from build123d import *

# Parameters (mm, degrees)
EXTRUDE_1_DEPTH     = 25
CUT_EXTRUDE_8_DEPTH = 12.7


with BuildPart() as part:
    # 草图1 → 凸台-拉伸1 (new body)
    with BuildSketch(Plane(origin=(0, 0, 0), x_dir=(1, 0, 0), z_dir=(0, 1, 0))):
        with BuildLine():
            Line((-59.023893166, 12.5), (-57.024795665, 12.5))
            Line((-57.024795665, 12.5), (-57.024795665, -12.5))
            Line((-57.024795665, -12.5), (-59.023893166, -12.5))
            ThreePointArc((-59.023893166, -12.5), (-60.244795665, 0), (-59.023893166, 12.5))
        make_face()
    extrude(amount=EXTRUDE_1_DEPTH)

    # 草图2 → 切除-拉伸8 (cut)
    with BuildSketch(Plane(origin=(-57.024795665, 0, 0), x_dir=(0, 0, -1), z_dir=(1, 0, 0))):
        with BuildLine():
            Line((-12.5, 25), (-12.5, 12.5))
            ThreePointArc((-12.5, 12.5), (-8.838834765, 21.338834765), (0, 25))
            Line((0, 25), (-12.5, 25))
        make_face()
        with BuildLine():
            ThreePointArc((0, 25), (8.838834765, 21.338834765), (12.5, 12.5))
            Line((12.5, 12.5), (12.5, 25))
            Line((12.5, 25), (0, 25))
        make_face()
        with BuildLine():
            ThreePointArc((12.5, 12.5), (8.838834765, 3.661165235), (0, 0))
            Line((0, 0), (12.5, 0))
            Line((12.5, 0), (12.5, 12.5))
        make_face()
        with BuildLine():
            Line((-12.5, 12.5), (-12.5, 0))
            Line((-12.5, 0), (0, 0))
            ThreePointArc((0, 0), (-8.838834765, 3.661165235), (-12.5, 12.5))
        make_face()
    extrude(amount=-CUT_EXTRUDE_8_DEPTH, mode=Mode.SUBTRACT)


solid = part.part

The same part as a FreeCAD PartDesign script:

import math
import FreeCAD as App
import Part
import Sketcher
Q = App.Units.Quantity

doc = App.newDocument("Part")
body = doc.addObject("PartDesign::Body", "Body")

# Sketch on XZ plane
sketch1 = body.newObject("Sketcher::SketchObject", "Sketch")
sketch1.AttachmentSupport = (doc.getObject("XZ_Plane"), [""])
sketch1.MapMode = "FlatFace"
sketch1.addGeometry([
    Part.LineSegment(App.Vector(-57, -12.5, 0), App.Vector(-59, -12.5, 0)),
    Part.ArcOfCircle(Part.Circle(App.Vector(4.4, 0, 0), App.Vector(0, 0, 1), 64.6), math.radians(169), math.radians(191)),
    Part.LineSegment(App.Vector(-59, 12.5, 0), App.Vector(-57, 12.5, 0)),
    Part.LineSegment(App.Vector(-57, 12.5, 0), App.Vector(-57, -12.5, 0)),
], False)
sketch1.addConstraint([
    Sketcher.Constraint("Coincident", 0, 2, 1, 2),
    Sketcher.Constraint("Coincident", 1, 1, 2, 1),
    Sketcher.Constraint("Coincident", 2, 2, 3, 1),
    Sketcher.Constraint("Coincident", 3, 2, 0, 1),
    Sketcher.Constraint("Horizontal", 0),
    Sketcher.Constraint("Horizontal", 2),
    Sketcher.Constraint("Vertical", 3),
    Sketcher.Constraint("Symmetric", 0, 2, 1, 1, -1),
    Sketcher.Constraint("Radius", 1, Q("64.6 mm")),
    Sketcher.Constraint("DistanceY", 3, 2, 3, 1, Q("25 mm")),
    Sketcher.Constraint("DistanceX", 2, 2, 1, 3, Q("61.38 mm")),
    Sketcher.Constraint("DistanceX", -1, 1, 1, 3, Q("4.355204 mm")),
])
pad1 = body.newObject("PartDesign::Pad", "Pad")
pad1.Profile = sketch1
pad1.Length = 25
pad1.Reversed = True

# Sketch on YZ plane
sketch2 = body.newObject("Sketcher::SketchObject", "Sketch001")
sketch2.AttachmentSupport = (doc.getObject("YZ_Plane"), [""])
sketch2.MapMode = "FlatFace"
sketch2.AttachmentOffset = App.Placement(App.Vector(0, 0, -57.024796), App.Rotation())
sketch2.addGeometry([
    Part.LineSegment(App.Vector(25, 12, 0), App.Vector(12, 12, 0)),  # 0
    Part.ArcOfCircle(Part.Circle(App.Vector(13, 0, 0), App.Vector(0, 0, 1), 12), math.radians(0), math.radians(90)),  # 1
    Part.LineSegment(App.Vector(25, 0, 0), App.Vector(25, 12, 0)),  # 2
    Part.ArcOfCircle(Part.Circle(App.Vector(13, 0, 0), App.Vector(0, 0, 1), 12), math.radians(-90), math.radians(0)),  # 3
    Part.LineSegment(App.Vector(12, -12, 0), App.Vector(25, -12, 0)),  # 4
    Part.LineSegment(App.Vector(25, -12, 0), App.Vector(25, 0, 0)),  # 5
    Part.ArcOfCircle(Part.Circle(App.Vector(12, 0, 0), App.Vector(0, 0, 1), 12), math.radians(180), math.radians(270)),  # 6
    Part.LineSegment(App.Vector(0, 0, 0), App.Vector(0, -12, 0)),  # 7
    Part.LineSegment(App.Vector(0, -12, 0), App.Vector(12, -12, 0)),  # 8
    Part.LineSegment(App.Vector(12, 12, 0), App.Vector(0, 12, 0)),  # 9
    Part.LineSegment(App.Vector(0, 12, 0), App.Vector(0, 0, 0)),  # 10
    Part.ArcOfCircle(Part.Circle(App.Vector(12, 0, 0), App.Vector(0, 0, 1), 12), math.radians(90), math.radians(180)),  # 11
], False)
sketch2.addConstraint([
    Sketcher.Constraint("Tangent", 0, 2, 1, 2),
    Sketcher.Constraint("Tangent", 1, 1, 2, 1),
    Sketcher.Constraint("Coincident", 2, 2, 0, 1),
    Sketcher.Constraint("Tangent", 3, 1, 4, 1),
    Sketcher.Constraint("Coincident", 4, 2, 5, 1),
    Sketcher.Constraint("Tangent", 5, 2, 3, 2),
    Sketcher.Constraint("Tangent", 6, 1, 7, 1),
    Sketcher.Constraint("Coincident", 7, 2, 8, 1),
    Sketcher.Constraint("Tangent", 8, 2, 6, 2),
    Sketcher.Constraint("Coincident", 9, 2, 10, 1),
    Sketcher.Constraint("Tangent", 10, 2, 11, 2),
    Sketcher.Constraint("Tangent", 11, 1, 9, 1),
    Sketcher.Constraint("Horizontal", 0),
    Sketcher.Constraint("Vertical", 2),
    Sketcher.Constraint("Horizontal", 4),
    Sketcher.Constraint("Vertical", 5),
    Sketcher.Constraint("Vertical", 7),
    Sketcher.Constraint("Horizontal", 8),
    Sketcher.Constraint("Horizontal", 9),
    Sketcher.Constraint("Vertical", 10),
    Sketcher.Constraint("Coincident", 6, 1, -1, 1),
    Sketcher.Constraint("Coincident", 10, 2, -1, 1),
    Sketcher.Constraint("Coincident", 3, 3, 1, 3),
    Sketcher.Constraint("Coincident", 6, 3, 1, 3),
    Sketcher.Constraint("Coincident", 11, 1, 0, 2),
    Sketcher.Constraint("Equal", 1, 3),
    Sketcher.Constraint("Radius", 1, Q("12.5 mm")),
])
pocket1 = body.newObject("PartDesign::Pocket", "Pocket")
pocket1.Profile = sketch2
pocket1.Length = 12.7

doc.recompute()
